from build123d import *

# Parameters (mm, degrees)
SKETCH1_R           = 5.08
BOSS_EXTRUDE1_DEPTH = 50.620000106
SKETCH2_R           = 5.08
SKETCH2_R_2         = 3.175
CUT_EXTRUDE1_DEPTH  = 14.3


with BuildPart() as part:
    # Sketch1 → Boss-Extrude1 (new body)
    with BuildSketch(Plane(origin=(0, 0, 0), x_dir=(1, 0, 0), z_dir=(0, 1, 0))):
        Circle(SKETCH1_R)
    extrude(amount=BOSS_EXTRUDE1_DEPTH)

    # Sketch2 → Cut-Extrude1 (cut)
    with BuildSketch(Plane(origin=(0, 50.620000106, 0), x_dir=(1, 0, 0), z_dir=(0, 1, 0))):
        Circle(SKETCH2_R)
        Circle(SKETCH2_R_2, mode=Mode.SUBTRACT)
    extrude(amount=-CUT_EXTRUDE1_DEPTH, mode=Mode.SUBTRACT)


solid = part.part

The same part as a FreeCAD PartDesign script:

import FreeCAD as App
import Part
import Sketcher
from FreeCAD import Vector
Q = App.Units.Quantity

doc = App.newDocument("Part")
body = doc.addObject("PartDesign::Body", "Body")

sketch1 = body.newObject("Sketcher::SketchObject", "Sketch")
sketch1.AttachmentSupport = (doc.getObject("XZ_Plane"), [""])
sketch1.MapMode = "FlatFace"
sketch1.addGeometry(Part.Circle(Vector(0, 0, 0), Vector(0, 0, 1), 5), False)
sketch1.addConstraint(Sketcher.Constraint("Coincident", 0, 3, -1, 1))
sketch1.addConstraint(Sketcher.Constraint("Diameter", 0, Q("0.4 in")))
pad1 = body.newObject("PartDesign::Pad", "Pad")
pad1.Profile = sketch1
pad1.Length = 50.62
pad1.Reversed = True

sketch2 = body.newObject("Sketcher::SketchObject", "Sketch001")
sketch2.AttachmentSupport = (doc.getObject("XZ_Plane"), [""])
sketch2.MapMode = "FlatFace"
sketch2.AttachmentOffset = App.Placement(Vector(0, 0, -50.62), App.Rotation())
sketch2.addGeometry(Part.Circle(Vector(0, 0, 0), Vector(0, 0, 1), 5.1), False)
sketch2.addGeometry(Part.Circle(Vector(0, 0, 0), Vector(0, 0, 1), 3.2), False)
sketch2.addConstraint(Sketcher.Constraint("Coincident", 0, 3, -1, 1))
sketch2.addConstraint(Sketcher.Constraint("Coincident", 1, 3, -1, 1))
sketch2.addConstraint(Sketcher.Constraint("Diameter", 0, Q("0.4 in")))
sketch2.addConstraint(Sketcher.Constraint("Diameter", 1, Q("0.25 in")))
pocket1 = body.newObject("PartDesign::Pocket", "Pocket")
pocket1.Profile = sketch2
pocket1.Length = 14.3
pocket1.Reversed = True

doc.recompute()
